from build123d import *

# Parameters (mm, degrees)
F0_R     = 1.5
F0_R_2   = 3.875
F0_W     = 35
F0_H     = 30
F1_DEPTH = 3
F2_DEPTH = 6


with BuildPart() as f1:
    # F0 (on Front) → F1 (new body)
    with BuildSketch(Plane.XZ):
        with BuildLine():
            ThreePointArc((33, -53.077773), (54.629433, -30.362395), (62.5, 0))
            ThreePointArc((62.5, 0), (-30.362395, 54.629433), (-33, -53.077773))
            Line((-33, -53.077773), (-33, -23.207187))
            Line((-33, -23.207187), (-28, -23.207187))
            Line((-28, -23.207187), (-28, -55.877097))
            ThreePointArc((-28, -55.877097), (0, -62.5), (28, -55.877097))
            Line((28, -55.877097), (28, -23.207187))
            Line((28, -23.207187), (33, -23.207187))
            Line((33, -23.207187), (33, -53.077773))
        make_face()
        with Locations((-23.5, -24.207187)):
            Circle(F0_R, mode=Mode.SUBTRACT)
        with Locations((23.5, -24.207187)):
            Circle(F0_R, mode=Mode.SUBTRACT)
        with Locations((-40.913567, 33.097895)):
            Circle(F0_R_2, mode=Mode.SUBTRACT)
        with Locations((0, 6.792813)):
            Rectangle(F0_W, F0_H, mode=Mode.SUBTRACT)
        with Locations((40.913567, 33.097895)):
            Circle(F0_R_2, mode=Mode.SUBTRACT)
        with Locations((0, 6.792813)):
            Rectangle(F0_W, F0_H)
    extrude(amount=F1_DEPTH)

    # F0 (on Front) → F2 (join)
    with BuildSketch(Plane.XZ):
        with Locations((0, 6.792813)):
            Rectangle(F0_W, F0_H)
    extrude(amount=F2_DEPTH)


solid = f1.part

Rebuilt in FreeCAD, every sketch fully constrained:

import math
import FreeCAD as App
import Part
import Sketcher
from FreeCAD import Vector
Q = App.Units.Quantity


def add_polygon(sketch, points):
    """Adds a closed chain of lines whose ends are joined by coincident constraints."""
    first, n = sketch.GeometryCount, len(points)
    for a, b in zip(points, points[1:] + points[:1]):
        sketch.addGeometry(Part.LineSegment(App.Vector(*a, 0), App.Vector(*b, 0)), False)
    for i in range(n):
        sketch.addConstraint(Sketcher.Constraint("Coincident", first + i, 2, first + (i + 1) % n, 1))

doc = App.newDocument("Part")
body = doc.addObject("PartDesign::Body", "Body")

# Sketch on XZ plane
sketch1 = body.newObject("Sketcher::SketchObject", "Sketch")
sketch1.AttachmentSupport = (doc.getObject("XZ_Plane"), [""])
sketch1.MapMode = "FlatFace"
sketch1.addGeometry(Part.ArcOfCircle(Part.Circle(Vector(0, 0, 0), Vector(0, 0, 1), 62.5), math.radians(-58), math.radians(0)), False)
sketch1.addGeometry(Part.ArcOfCircle(Part.Circle(Vector(0, 0, 0), Vector(0, 0, 1), 62.5), math.radians(0), math.radians(238)), False)
sketch1.addGeometry(Part.LineSegment(Vector(-33, -53.1, 0), Vector(-33, -23.2, 0)), False)
sketch1.addGeometry(Part.LineSegment(Vector(-33, -23.2, 0), Vector(-28, -23.2, 0)), False)
sketch1.addGeometry(Part.LineSegment(Vector(-28, -23.2, 0), Vector(-28, -55.9, 0)), False)
sketch1.addGeometry(Part.ArcOfCircle(Part.Circle(Vector(0, 0, 0), Vector(0, 0, 1), 62.5), math.radians(-117), math.radians(-63)), False)
sketch1.addGeometry(Part.LineSegment(Vector(28, -55.9, 0), Vector(28, -23.2, 0)), False)
sketch1.addGeometry(Part.LineSegment(Vector(28, -23.2, 0), Vector(33, -23.2, 0)), False)
sketch1.addGeometry(Part.LineSegment(Vector(33, -23.2, 0), Vector(33, -53.1, 0)), False)
sketch1.addGeometry(Part.Circle(Vector(-23.5, -24.2, 0), Vector(0, 0, 1), 1.5), False)
sketch1.addGeometry(Part.Circle(Vector(23.5, -24.2, 0), Vector(0, 0, 1), 1.5), False)
sketch1.addGeometry(Part.Circle(Vector(-40.9, 33.1, 0), Vector(0, 0, 1), 3.9), False)
sketch1.addGeometry(Part.Circle(Vector(40.9, 33.1, 0), Vector(0, 0, 1), 3.9), False)
sketch1.addConstraint(Sketcher.Constraint("Tangent", 0, 2, 1, 1))
sketch1.addConstraint(Sketcher.Constraint("Coincident", 1, 2, 2, 1))
sketch1.addConstraint(Sketcher.Constraint("Coincident", 2, 2, 3, 1))
sketch1.addConstraint(Sketcher.Constraint("Coincident", 3, 2, 4, 1))
sketch1.addConstraint(Sketcher.Constraint("Coincident", 4, 2, 5, 1))
sketch1.addConstraint(Sketcher.Constraint("Coincident", 5, 2, 6, 1))
sketch1.addConstraint(Sketcher.Constraint("Coincident", 6, 2, 7, 1))
sketch1.addConstraint(Sketcher.Constraint("Coincident", 7, 2, 8, 1))
sketch1.addConstraint(Sketcher.Constraint("Coincident", 8, 2, 0, 1))
sketch1.addConstraint(Sketcher.Constraint("Vertical", 2))
sketch1.addConstraint(Sketcher.Constraint("Horizontal", 3))
sketch1.addConstraint(Sketcher.Constraint("Vertical", 4))
sketch1.addConstraint(Sketcher.Constraint("Vertical", 6))
sketch1.addConstraint(Sketcher.Constraint("Horizontal", 7))
sketch1.addConstraint(Sketcher.Constraint("Vertical", 8))
sketch1.addConstraint(Sketcher.Constraint("Coincident", 0, 3, -1, 1))
sketch1.addConstraint(Sketcher.Constraint("Coincident", 5, 3, -1, 1))
sketch1.addConstraint(Sketcher.Constraint("Equal", 0, 1))
sketch1.addConstraint(Sketcher.Constraint("Equal", 9, 10))
sketch1.addConstraint(Sketcher.Constraint("Equal", 11, 12))
sketch1.addConstraint(Sketcher.Constraint("Symmetric", 9, 3, 10, 3, -2))
sketch1.addConstraint(Sketcher.Constraint("Symmetric", 11, 3, 12, 3, -2))
sketch1.addConstraint(Sketcher.Constraint("Symmetric", 3, 2, 6, 2, -2))
sketch1.addConstraint(Sketcher.Constraint("PointOnObject", 0, 2, -1))
sketch1.addConstraint(Sketcher.Constraint("Horizontal", 1, 2, 8, 2))
sketch1.addConstraint(Sketcher.Constraint("Diameter", 9, Q("3 mm")))
sketch1.addConstraint(Sketcher.Constraint("Radius", 0, Q("62.500001 mm")))
sketch1.addConstraint(Sketcher.Constraint("Diameter", 11, Q("7.75 mm")))
sketch1.addConstraint(Sketcher.Constraint("DistanceX", 3, 1, 3, 2, Q("5 mm")))
sketch1.addConstraint(Sketcher.Constraint("DistanceX", 1, 2, -1, 1, Q("33 mm")))
sketch1.addConstraint(Sketcher.Constraint("DistanceX", 9, 3, 10, 3, Q("47 mm")))
sketch1.addConstraint(Sketcher.Constraint("DistanceY", 9, 3, 2, 2, Q("1 mm")))
sketch1.addConstraint(Sketcher.Constraint("Radius", 5, Q("62.499998 mm")))
sketch1.addConstraint(Sketcher.Constraint("DistanceY", 4, 2, 4, 1, Q("32.66991 mm")))
sketch1.addConstraint(Sketcher.Constraint("DistanceX", 11, 3, -1, 1, Q("40.913567 mm")))
sketch1.addConstraint(Sketcher.Constraint("DistanceY", -1, 1, 11, 3, Q("33.097895 mm")))
pad1 = body.newObject("PartDesign::Pad", "Pad")
pad1.Profile = sketch1
pad1.Length = 3

# Sketch on XZ plane
sketch2 = body.newObject("Sketcher::SketchObject", "Sketch001")
sketch2.AttachmentSupport = (doc.getObject("XZ_Plane"), [""])
sketch2.MapMode = "FlatFace"
add_polygon(sketch2, [(-18, 22), (-18, -8), (18, -8), (18, 22)])  # lines 0-3
sketch2.addConstraint(Sketcher.Constraint("Vertical", 0))
sketch2.addConstraint(Sketcher.Constraint("Horizontal", 1))
sketch2.addConstraint(Sketcher.Constraint("Vertical", 2))
sketch2.addConstraint(Sketcher.Constraint("Horizontal", 3))
sketch2.addConstraint(Sketcher.Constraint("DistanceX", 1, 1, 1, 2, Q("35 mm")))
sketch2.addConstraint(Sketcher.Constraint("DistanceY", 0, 2, 0, 1, Q("30 mm")))
sketch2.addConstraint(Sketcher.Constraint("DistanceX", 0, 2, -1, 1, Q("17.5 mm")))
sketch2.addConstraint(Sketcher.Constraint("DistanceY", 0, 2, -1, 1, Q("8.207187 mm")))
pad2 = body.newObject("PartDesign::Pad", "Pad001")
pad2.Profile = sketch2
pad2.Length = 6

doc.recompute()
